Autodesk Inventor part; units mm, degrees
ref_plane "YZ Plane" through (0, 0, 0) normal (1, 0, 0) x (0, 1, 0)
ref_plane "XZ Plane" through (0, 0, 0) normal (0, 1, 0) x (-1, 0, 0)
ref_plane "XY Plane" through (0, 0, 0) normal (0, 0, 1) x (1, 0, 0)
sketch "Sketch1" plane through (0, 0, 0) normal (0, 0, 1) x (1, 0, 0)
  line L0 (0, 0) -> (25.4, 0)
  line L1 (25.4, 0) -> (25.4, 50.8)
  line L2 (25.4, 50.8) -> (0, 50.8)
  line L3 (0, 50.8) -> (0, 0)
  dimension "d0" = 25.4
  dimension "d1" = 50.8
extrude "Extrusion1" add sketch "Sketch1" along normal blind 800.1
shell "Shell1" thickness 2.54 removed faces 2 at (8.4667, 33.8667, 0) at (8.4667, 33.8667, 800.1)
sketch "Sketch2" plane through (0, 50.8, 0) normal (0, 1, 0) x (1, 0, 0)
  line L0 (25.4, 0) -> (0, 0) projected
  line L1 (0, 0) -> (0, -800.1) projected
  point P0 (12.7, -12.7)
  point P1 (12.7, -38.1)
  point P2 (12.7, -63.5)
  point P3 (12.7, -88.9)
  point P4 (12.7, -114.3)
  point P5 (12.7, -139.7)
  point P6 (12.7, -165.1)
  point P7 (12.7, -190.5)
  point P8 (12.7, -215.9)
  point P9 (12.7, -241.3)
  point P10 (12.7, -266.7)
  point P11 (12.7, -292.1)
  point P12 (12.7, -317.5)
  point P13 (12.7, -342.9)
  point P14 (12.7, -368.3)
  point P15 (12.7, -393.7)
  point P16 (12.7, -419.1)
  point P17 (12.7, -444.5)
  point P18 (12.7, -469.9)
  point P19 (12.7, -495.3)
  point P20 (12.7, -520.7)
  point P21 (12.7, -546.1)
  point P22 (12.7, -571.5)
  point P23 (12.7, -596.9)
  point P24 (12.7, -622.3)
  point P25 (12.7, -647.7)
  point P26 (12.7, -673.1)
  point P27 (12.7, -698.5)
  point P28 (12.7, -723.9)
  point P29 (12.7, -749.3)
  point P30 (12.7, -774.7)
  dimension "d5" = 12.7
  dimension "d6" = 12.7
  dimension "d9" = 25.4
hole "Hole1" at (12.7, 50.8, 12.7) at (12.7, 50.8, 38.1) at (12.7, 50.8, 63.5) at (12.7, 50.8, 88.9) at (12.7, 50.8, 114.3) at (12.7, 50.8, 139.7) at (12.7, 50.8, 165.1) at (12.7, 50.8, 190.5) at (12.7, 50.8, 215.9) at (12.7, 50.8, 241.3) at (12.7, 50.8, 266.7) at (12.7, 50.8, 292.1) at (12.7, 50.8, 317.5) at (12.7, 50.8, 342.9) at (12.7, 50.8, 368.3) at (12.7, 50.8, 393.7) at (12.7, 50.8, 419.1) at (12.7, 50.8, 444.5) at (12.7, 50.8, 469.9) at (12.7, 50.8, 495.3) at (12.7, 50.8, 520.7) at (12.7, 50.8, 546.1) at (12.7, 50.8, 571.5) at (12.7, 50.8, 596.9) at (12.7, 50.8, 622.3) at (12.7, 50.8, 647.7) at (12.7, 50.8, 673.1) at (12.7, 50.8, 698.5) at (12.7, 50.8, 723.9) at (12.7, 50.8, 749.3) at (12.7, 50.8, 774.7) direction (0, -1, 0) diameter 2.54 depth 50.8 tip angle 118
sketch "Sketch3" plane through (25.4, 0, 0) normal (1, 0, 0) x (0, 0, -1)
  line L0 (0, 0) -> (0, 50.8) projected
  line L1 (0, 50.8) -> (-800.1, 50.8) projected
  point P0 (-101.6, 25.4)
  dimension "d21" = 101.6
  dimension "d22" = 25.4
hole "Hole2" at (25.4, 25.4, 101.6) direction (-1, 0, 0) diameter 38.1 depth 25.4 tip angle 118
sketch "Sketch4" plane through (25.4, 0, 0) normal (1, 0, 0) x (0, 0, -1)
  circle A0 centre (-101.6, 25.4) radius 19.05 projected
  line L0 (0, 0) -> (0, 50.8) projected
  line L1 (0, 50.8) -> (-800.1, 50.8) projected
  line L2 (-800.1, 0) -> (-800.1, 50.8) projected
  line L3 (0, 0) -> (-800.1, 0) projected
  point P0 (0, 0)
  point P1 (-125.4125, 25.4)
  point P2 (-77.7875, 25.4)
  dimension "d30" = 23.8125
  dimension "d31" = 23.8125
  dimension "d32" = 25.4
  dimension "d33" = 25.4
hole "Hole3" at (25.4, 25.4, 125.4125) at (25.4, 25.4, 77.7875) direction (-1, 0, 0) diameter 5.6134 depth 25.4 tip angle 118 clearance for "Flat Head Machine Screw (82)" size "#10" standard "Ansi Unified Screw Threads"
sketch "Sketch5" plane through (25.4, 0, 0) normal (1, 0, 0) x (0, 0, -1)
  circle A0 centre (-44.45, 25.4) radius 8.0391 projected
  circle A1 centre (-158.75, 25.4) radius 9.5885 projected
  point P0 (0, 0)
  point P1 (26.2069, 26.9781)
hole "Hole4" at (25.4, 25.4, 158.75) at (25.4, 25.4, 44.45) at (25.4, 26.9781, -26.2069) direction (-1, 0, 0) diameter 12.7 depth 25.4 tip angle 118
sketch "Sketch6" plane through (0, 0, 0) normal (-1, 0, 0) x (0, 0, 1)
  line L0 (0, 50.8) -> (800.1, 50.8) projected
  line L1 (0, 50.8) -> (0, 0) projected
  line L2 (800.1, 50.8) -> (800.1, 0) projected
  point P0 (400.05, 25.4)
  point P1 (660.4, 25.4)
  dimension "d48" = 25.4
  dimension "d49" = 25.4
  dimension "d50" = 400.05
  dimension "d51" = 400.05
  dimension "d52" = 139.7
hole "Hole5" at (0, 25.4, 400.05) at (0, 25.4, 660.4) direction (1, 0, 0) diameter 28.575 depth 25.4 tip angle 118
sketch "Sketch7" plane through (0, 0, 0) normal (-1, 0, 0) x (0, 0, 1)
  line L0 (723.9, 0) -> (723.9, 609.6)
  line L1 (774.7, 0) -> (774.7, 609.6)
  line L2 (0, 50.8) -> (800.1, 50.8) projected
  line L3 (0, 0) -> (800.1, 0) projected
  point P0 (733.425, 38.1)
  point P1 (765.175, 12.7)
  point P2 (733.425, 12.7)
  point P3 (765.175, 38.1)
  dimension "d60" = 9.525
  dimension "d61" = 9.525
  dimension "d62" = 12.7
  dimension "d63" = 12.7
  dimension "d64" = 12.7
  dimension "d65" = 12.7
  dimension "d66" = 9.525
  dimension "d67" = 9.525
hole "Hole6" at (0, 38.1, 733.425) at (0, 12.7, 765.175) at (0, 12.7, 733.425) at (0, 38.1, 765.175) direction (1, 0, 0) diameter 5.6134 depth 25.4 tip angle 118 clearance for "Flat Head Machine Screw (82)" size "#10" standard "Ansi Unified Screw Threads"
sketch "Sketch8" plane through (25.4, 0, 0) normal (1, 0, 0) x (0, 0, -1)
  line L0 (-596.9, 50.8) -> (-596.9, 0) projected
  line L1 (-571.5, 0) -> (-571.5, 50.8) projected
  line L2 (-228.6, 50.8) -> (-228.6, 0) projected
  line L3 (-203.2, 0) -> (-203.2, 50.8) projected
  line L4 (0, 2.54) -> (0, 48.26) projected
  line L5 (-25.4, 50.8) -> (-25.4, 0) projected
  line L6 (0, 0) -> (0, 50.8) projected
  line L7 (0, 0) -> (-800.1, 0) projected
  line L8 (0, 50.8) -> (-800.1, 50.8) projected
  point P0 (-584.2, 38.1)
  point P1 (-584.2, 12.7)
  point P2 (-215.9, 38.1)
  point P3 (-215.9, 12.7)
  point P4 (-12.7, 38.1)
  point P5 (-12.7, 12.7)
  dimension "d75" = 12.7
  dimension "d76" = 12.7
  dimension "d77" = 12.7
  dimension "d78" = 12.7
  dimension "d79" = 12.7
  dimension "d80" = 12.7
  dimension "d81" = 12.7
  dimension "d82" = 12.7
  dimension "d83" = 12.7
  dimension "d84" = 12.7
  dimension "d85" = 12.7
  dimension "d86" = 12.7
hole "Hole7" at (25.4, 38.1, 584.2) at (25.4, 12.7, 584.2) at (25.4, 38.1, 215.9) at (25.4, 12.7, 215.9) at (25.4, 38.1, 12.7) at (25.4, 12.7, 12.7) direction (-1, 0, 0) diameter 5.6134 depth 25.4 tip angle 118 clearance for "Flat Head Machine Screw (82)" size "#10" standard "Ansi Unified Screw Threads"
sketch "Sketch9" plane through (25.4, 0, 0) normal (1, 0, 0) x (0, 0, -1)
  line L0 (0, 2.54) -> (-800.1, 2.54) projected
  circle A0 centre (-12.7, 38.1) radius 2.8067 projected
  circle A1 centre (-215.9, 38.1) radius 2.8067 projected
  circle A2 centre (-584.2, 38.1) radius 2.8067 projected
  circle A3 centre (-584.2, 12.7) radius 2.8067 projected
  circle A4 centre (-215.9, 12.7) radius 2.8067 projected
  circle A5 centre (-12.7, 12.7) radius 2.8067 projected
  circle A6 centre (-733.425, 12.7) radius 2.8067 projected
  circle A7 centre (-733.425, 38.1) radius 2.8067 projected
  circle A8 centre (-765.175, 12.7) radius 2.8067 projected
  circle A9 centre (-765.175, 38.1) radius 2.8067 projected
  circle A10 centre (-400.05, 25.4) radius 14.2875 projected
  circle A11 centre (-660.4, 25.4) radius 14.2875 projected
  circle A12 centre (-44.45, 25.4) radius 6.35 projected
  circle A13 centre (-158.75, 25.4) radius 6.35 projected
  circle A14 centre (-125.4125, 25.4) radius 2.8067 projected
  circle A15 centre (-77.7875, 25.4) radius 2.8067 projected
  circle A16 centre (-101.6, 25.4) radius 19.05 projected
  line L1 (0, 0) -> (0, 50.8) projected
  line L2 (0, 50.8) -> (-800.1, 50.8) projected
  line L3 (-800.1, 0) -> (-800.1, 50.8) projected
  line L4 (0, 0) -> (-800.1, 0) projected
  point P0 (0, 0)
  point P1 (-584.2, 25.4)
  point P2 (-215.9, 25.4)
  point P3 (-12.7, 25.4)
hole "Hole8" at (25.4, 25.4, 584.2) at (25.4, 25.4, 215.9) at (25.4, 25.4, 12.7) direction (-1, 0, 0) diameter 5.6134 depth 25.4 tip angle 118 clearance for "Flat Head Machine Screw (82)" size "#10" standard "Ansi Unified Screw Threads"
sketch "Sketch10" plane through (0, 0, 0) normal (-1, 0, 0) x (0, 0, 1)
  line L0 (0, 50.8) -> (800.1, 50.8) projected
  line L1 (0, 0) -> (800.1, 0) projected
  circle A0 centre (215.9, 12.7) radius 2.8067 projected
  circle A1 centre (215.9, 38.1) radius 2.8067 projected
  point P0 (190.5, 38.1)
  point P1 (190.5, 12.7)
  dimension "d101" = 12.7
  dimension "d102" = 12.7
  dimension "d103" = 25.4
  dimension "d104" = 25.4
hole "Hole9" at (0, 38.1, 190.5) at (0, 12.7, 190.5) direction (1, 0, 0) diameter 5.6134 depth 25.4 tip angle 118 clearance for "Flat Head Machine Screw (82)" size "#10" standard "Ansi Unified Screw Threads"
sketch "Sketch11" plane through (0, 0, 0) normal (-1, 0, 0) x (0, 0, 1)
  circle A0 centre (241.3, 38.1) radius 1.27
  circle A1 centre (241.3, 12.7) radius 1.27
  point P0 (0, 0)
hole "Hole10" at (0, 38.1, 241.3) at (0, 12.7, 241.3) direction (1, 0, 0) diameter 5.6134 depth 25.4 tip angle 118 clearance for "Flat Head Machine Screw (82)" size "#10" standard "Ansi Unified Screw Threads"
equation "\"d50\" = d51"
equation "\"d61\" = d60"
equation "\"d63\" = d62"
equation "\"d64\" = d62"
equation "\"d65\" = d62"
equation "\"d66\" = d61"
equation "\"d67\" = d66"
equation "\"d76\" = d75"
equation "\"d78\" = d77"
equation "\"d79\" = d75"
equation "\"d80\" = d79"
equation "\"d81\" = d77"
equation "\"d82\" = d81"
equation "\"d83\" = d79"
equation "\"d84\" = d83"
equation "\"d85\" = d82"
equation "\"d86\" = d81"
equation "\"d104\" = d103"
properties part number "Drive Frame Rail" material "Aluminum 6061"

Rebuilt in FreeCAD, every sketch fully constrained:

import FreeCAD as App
import Part
import Sketcher
from FreeCAD import Vector
Q = App.Units.Quantity


def faces_at(feature, points):
    """Names of the faces that lie closest to the given points."""
    faces = feature.Shape.Faces
    near = lambda p: min(range(len(faces)), key=lambda i: faces[i].distToShape(Part.Vertex(*p))[0])
    return sorted({f"Face{near(p) + 1}" for p in points})

doc = App.newDocument("Part")
params = doc.addObject("Spreadsheet::Sheet", "Params")
for row, (alias, value) in enumerate([
    ("sketch1_width", "1 in"),
    ("sketch1_height", "2 in"),
    ("pad1_length", "31.5 in"),
    ("thickness_wall", "0.1 in"),
    ("sketch2_diameter", "0.1 in"),
    ("hole_diameter", "0.1 in"),
    ("hole_depth", "2 in"),
    ("sketch3_diameter", "1.5 in"),
    ("hole2_diameter", "1.5 in"),
    ("hole2_depth", "1 in"),
    ("sketch4_diameter", "0.221 in"),
    ("hole3_diameter", "0.221 in"),
    ("hole3_depth", "1 in"),
    ("sketch5_diameter", "0.5 in"),
    ("hole4_diameter", "0.5 in"),
    ("hole4_depth", "1 in"),
    ("sketch6_diameter", "1.125 in"),
    ("hole5_diameter", "1.125 in"),
    ("hole5_depth", "1 in"),
    ("sketch7_diameter", "0.221 in"),
    ("hole6_diameter", "0.221 in"),
    ("hole6_depth", "1 in"),
    ("sketch8_diameter", "0.221 in"),
    ("hole7_diameter", "0.221 in"),
    ("hole7_depth", "1 in"),
    ("sketch9_diameter", "0.221 in"),
    ("hole8_diameter", "0.221 in"),
    ("hole8_depth", "1 in"),
    ("sketch10_diameter", "0.221 in"),
    ("hole9_diameter", "0.221 in"),
    ("hole9_depth", "1 in"),
    ("sketch11_diameter", "0.221 in"),
    ("hole10_diameter", "0.221 in"),
    ("hole10_depth", "1 in"),
], start=1):
    params.set(f"A{row}", alias)
    params.set(f"B{row}", "=" + value)
    params.setAlias(f"B{row}", alias)

body = doc.addObject("PartDesign::Body", "Body")

# Sketch on XY plane
sketch1 = doc.addObject("Sketcher::SketchObject", "Sketch")
body.addObject(sketch1)
sketch1.AttachmentSupport = (doc.XY_Plane, [""])
sketch1.MapMode = "FlatFace"
sketch1.addGeometry([
    Part.LineSegment(Vector(0, 51, 0), Vector(0, 0, 0)),
    Part.LineSegment(Vector(0, 0, 0), Vector(25, 0, 0)),
    Part.LineSegment(Vector(25, 0, 0), Vector(25, 51, 0)),
    Part.LineSegment(Vector(25, 51, 0), Vector(0, 51, 0)),
], False)
sketch1.addConstraint([
    Sketcher.Constraint("Coincident", 0, 2, 1, 1),
    Sketcher.Constraint("Coincident", 1, 2, 2, 1),
    Sketcher.Constraint("Coincident", 2, 2, 3, 1),
    Sketcher.Constraint("Coincident", 3, 2, 0, 1),
    Sketcher.Constraint("Vertical", 0),
    Sketcher.Constraint("Horizontal", 1),
    Sketcher.Constraint("Vertical", 2),
    Sketcher.Constraint("Horizontal", 3),
    Sketcher.Constraint("Coincident", 0, 2, -1, 1),
    Sketcher.Constraint("DistanceX", 1, 1, 1, 2, Q("1 in")),
    Sketcher.Constraint("DistanceY", 0, 2, 0, 1, Q("2 in")),
])
sketch1.setExpression("Constraints[9]", "Params.sketch1_width")
sketch1.setExpression("Constraints[10]", "Params.sketch1_height")
pad1 = doc.addObject("PartDesign::Pad", "Pad")
body.addObject(pad1)
pad1.Profile = sketch1
pad1.setExpression("Length", "Params.pad1_length")
doc.recompute()

thickness = doc.addObject("PartDesign::Thickness", "Thickness")
body.addObject(thickness)
thickness.Base = (pad1, faces_at(pad1, [(8.467, 33.867, 0), (8.467, 33.867, 800.1)]))
thickness.setExpression("Value", "Params.thickness_wall")
thickness.Reversed = True
thickness.Join = "Intersection"

# Sketch on XZ plane
sketch2 = doc.addObject("Sketcher::SketchObject", "Sketch001")
body.addObject(sketch2)
sketch2.AttachmentSupport = (doc.XZ_Plane, [""])
sketch2.MapMode = "FlatFace"
sketch2.AttachmentOffset = App.Placement(Vector(0, 0, -2 * 25.4), App.Rotation())
sketch2.addGeometry([
    Part.Circle(Vector(12.7, 12.7, 0), Vector(0, 0, 1), 1.3),  # 0
    Part.Circle(Vector(12.7, 38.1, 0), Vector(0, 0, 1), 1.3),  # 1
    Part.Circle(Vector(12.7, 63.5, 0), Vector(0, 0, 1), 1.3),  # 2
    Part.Circle(Vector(12.7, 88.9, 0), Vector(0, 0, 1), 1.3),  # 3
    Part.Circle(Vector(12.7, 114.3, 0), Vector(0, 0, 1), 1.3),  # 4
    Part.Circle(Vector(12.7, 139.7, 0), Vector(0, 0, 1), 1.3),  # 5
    Part.Circle(Vector(12.7, 165.1, 0), Vector(0, 0, 1), 1.3),  # 6
    Part.Circle(Vector(12.7, 190.5, 0), Vector(0, 0, 1), 1.3),  # 7
    Part.Circle(Vector(12.7, 215.9, 0), Vector(0, 0, 1), 1.3),  # 8
    Part.Circle(Vector(12.7, 241.3, 0), Vector(0, 0, 1), 1.3),  # 9
    Part.Circle(Vector(12.7, 266.7, 0), Vector(0, 0, 1), 1.3),  # 10
    Part.Circle(Vector(12.7, 292.1, 0), Vector(0, 0, 1), 1.3),  # 11
    Part.Circle(Vector(12.7, 317.5, 0), Vector(0, 0, 1), 1.3),  # 12
    Part.Circle(Vector(12.7, 342.9, 0), Vector(0, 0, 1), 1.3),  # 13
    Part.Circle(Vector(12.7, 368.3, 0), Vector(0, 0, 1), 1.3),  # 14
    Part.Circle(Vector(12.7, 393.7, 0), Vector(0, 0, 1), 1.3),  # 15
    Part.Circle(Vector(12.7, 419.1, 0), Vector(0, 0, 1), 1.3),  # 16
    Part.Circle(Vector(12.7, 444.5, 0), Vector(0, 0, 1), 1.3),  # 17
    Part.Circle(Vector(12.7, 469.9, 0), Vector(0, 0, 1), 1.3),  # 18
    Part.Circle(Vector(12.7, 495.3, 0), Vector(0, 0, 1), 1.3),  # 19
    Part.Circle(Vector(12.7, 520.7, 0), Vector(0, 0, 1), 1.3),  # 20
    Part.Circle(Vector(12.7, 546.1, 0), Vector(0, 0, 1), 1.3),  # 21
    Part.Circle(Vector(12.7, 571.5, 0), Vector(0, 0, 1), 1.3),  # 22
    Part.Circle(Vector(12.7, 596.9, 0), Vector(0, 0, 1), 1.3),  # 23
    Part.Circle(Vector(12.7, 622.3, 0), Vector(0, 0, 1), 1.3),  # 24
    Part.Circle(Vector(12.7, 647.7, 0), Vector(0, 0, 1), 1.3),  # 25
    Part.Circle(Vector(12.7, 673.1, 0), Vector(0, 0, 1), 1.3),  # 26
    Part.Circle(Vector(12.7, 698.5, 0), Vector(0, 0, 1), 1.3),  # 27
    Part.Circle(Vector(12.7, 723.9, 0), Vector(0, 0, 1), 1.3),  # 28
    Part.Circle(Vector(12.7, 749.3, 0), Vector(0, 0, 1), 1.3),  # 29
    Part.Circle(Vector(12.7, 774.7, 0), Vector(0, 0, 1), 1.3),  # 30
], False)
sketch2.addConstraint([
    Sketcher.Constraint("Equal", 0, 1),
    Sketcher.Constraint("Equal", 1, 2),
    Sketcher.Constraint("Equal", 2, 3),
    Sketcher.Constraint("Equal", 3, 4),
    Sketcher.Constraint("Equal", 4, 5),
    Sketcher.Constraint("Equal", 5, 6),
    Sketcher.Constraint("Equal", 6, 7),
    Sketcher.Constraint("Equal", 7, 8),
    Sketcher.Constraint("Equal", 8, 9),
    Sketcher.Constraint("Equal", 9, 10),
    Sketcher.Constraint("Equal", 10, 11),
    Sketcher.Constraint("Equal", 11, 12),
    Sketcher.Constraint("Equal", 12, 13),
    Sketcher.Constraint("Equal", 13, 14),
    Sketcher.Constraint("Equal", 14, 15),
    Sketcher.Constraint("Equal", 15, 16),
    Sketcher.Constraint("Equal", 16, 17),
    Sketcher.Constraint("Equal", 17, 18),
    Sketcher.Constraint("Equal", 18, 19),
    Sketcher.Constraint("Equal", 19, 20),
    Sketcher.Constraint("Equal", 20, 21),
    Sketcher.Constraint("Equal", 21, 22),
    Sketcher.Constraint("Equal", 22, 23),
    Sketcher.Constraint("Equal", 23, 24),
    Sketcher.Constraint("Equal", 24, 25),
    Sketcher.Constraint("Equal", 25, 26),
    Sketcher.Constraint("Equal", 26, 27),
    Sketcher.Constraint("Equal", 27, 28),
    Sketcher.Constraint("Equal", 28, 29),
    Sketcher.Constraint("Equal", 29, 30),
    Sketcher.Constraint("Vertical", 0, 3, 1, 3),
    Sketcher.Constraint("Vertical", 1, 3, 2, 3),
    Sketcher.Constraint("Vertical", 2, 3, 3, 3),
    Sketcher.Constraint("Vertical", 3, 3, 4, 3),
    Sketcher.Constraint("Vertical", 4, 3, 5, 3),
    Sketcher.Constraint("Vertical", 5, 3, 6, 3),
    Sketcher.Constraint("Vertical", 6, 3, 7, 3),
    Sketcher.Constraint("Vertical", 7, 3, 8, 3),
    Sketcher.Constraint("Vertical", 8, 3, 9, 3),
    Sketcher.Constraint("Vertical", 9, 3, 10, 3),
    Sketcher.Constraint("Vertical", 10, 3, 11, 3),
    Sketcher.Constraint("Vertical", 11, 3, 12, 3),
    Sketcher.Constraint("Vertical", 12, 3, 13, 3),
    Sketcher.Constraint("Vertical", 13, 3, 14, 3),
    Sketcher.Constraint("Vertical", 14, 3, 15, 3),
    Sketcher.Constraint("Vertical", 15, 3, 16, 3),
    Sketcher.Constraint("Vertical", 16, 3, 17, 3),
    Sketcher.Constraint("Vertical", 17, 3, 18, 3),
    Sketcher.Constraint("Vertical", 18, 3, 19, 3),
    Sketcher.Constraint("Vertical", 19, 3, 20, 3),
    Sketcher.Constraint("Vertical", 20, 3, 21, 3),
    Sketcher.Constraint("Vertical", 21, 3, 22, 3),
    Sketcher.Constraint("Vertical", 22, 3, 23, 3),
    Sketcher.Constraint("Vertical", 23, 3, 24, 3),
    Sketcher.Constraint("Vertical", 24, 3, 25, 3),
    Sketcher.Constraint("Vertical", 25, 3, 26, 3),
    Sketcher.Constraint("Vertical", 26, 3, 27, 3),
    Sketcher.Constraint("Vertical", 27, 3, 28, 3),
    Sketcher.Constraint("Vertical", 28, 3, 29, 3),
    Sketcher.Constraint("Vertical", 29, 3, 30, 3),
    Sketcher.Constraint("Diameter", 0, Q("0.1 in")),
    Sketcher.Constraint("DistanceY", 0, 3, 1, 3, Q("1 in")),
    Sketcher.Constraint("DistanceY", 1, 3, 2, 3, Q("1 in")),
    Sketcher.Constraint("DistanceY", 2, 3, 3, 3, Q("1 in")),
    Sketcher.Constraint("DistanceY", 3, 3, 4, 3, Q("1 in")),
    Sketcher.Constraint("DistanceY", 4, 3, 5, 3, Q("1 in")),
    Sketcher.Constraint("DistanceY", 5, 3, 6, 3, Q("1 in")),
    Sketcher.Constraint("DistanceY", 6, 3, 7, 3, Q("1 in")),
    Sketcher.Constraint("DistanceY", 7, 3, 8, 3, Q("1 in")),
    Sketcher.Constraint("DistanceY", 8, 3, 9, 3, Q("1 in")),
    Sketcher.Constraint("DistanceY", 9, 3, 10, 3, Q("1 in")),
    Sketcher.Constraint("DistanceY", 10, 3, 11, 3, Q("1 in")),
    Sketcher.Constraint("DistanceY", 11, 3, 12, 3, Q("1 in")),
    Sketcher.Constraint("DistanceY", 12, 3, 13, 3, Q("1 in")),
    Sketcher.Constraint("DistanceY", 13, 3, 14, 3, Q("1 in")),
    Sketcher.Constraint("DistanceY", 14, 3, 15, 3, Q("1 in")),
    Sketcher.Constraint("DistanceY", 15, 3, 16, 3, Q("1 in")),
    Sketcher.Constraint("DistanceY", 16, 3, 17, 3, Q("1 in")),
    Sketcher.Constraint("DistanceY", 17, 3, 18, 3, Q("1 in")),
    Sketcher.Constraint("DistanceY", 18, 3, 19, 3, Q("1 in")),
    Sketcher.Constraint("DistanceY", 19, 3, 20, 3, Q("1 in")),
    Sketcher.Constraint("DistanceY", 20, 3, 21, 3, Q("1 in")),
    Sketcher.Constraint("DistanceY", 21, 3, 22, 3, Q("1 in")),
    Sketcher.Constraint("DistanceY", 22, 3, 23, 3, Q("1 in")),
    Sketcher.Constraint("DistanceY", 23, 3, 24, 3, Q("1 in")),
    Sketcher.Constraint("DistanceY", 24, 3, 25, 3, Q("1 in")),
    Sketcher.Constraint("DistanceY", 25, 3, 26, 3, Q("1 in")),
    Sketcher.Constraint("DistanceY", 26, 3, 27, 3, Q("1 in")),
    Sketcher.Constraint("DistanceY", 27, 3, 28, 3, Q("1 in")),
    Sketcher.Constraint("DistanceY", 28, 3, 29, 3, Q("1 in")),
    Sketcher.Constraint("DistanceY", 29, 3, 30, 3, Q("1 in")),
    Sketcher.Constraint("DistanceX", -1, 1, 0, 3, Q("0.5 in")),
    Sketcher.Constraint("DistanceY", -1, 1, 0, 3, Q("0.5 in")),
])
sketch2.setExpression("Constraints[60]", "Params.sketch2_diameter")
doc.recompute()
hole = doc.addObject("PartDesign::Hole", "Hole")
body.addObject(hole)
hole.Profile = sketch2
hole.ThreadType = "None"
hole.setExpression("Diameter", "Params.hole_diameter")
hole.DepthType = "Dimension"
hole.setExpression("Depth", "Params.hole_depth")
hole.DrillPoint = "Angled"
hole.DrillPointAngle = 118
hole.Reversed = True

# Sketch on YZ plane
sketch3 = doc.addObject("Sketcher::SketchObject", "Sketch002")
body.addObject(sketch3)
sketch3.AttachmentSupport = (doc.YZ_Plane, [""])
sketch3.MapMode = "FlatFace"
sketch3.AttachmentOffset = App.Placement(Vector(0, 0, 1 * 25.4), App.Rotation())
sketch3.addGeometry(Part.Circle(Vector(25, 102, 0), Vector(0, 0, 1), 19), False)
sketch3.addConstraint([
    Sketcher.Constraint("Diameter", 0, Q("1.5 in")),
    Sketcher.Constraint("DistanceX", -1, 1, 0, 3, Q("1 in")),
    Sketcher.Constraint("DistanceY", -1, 1, 0, 3, Q("4 in")),
])
sketch3.setExpression("Constraints[0]", "Params.sketch3_diameter")
doc.recompute()
hole2 = doc.addObject("PartDesign::Hole", "Hole001")
body.addObject(hole2)
hole2.Profile = sketch3
hole2.ThreadType = "None"
hole2.setExpression("Diameter", "Params.hole2_diameter")
hole2.DepthType = "Dimension"
hole2.setExpression("Depth", "Params.hole2_depth")
hole2.DrillPoint = "Angled"
hole2.DrillPointAngle = 118

# Sketch on YZ plane
sketch4 = doc.addObject("Sketcher::SketchObject", "Sketch003")
body.addObject(sketch4)
sketch4.AttachmentSupport = (doc.YZ_Plane, [""])
sketch4.MapMode = "FlatFace"
sketch4.AttachmentOffset = App.Placement(Vector(0, 0, 1 * 25.4), App.Rotation())
sketch4.addGeometry([
    Part.Circle(Vector(25.4, 125.4, 0), Vector(0, 0, 1), 2.8),
    Part.Circle(Vector(25.4, 77.8, 0), Vector(0, 0, 1), 2.8),
], False)
sketch4.addConstraint([
    Sketcher.Constraint("Equal", 0, 1),
    Sketcher.Constraint("Vertical", 0, 3, 1, 3),
    Sketcher.Constraint("Diameter", 0, Q("0.221 in")),
    Sketcher.Constraint("DistanceX", -1, 1, 0, 3, Q("1 in")),
    Sketcher.Constraint("DistanceY", -1, 1, 0, 3, Q("4.9375 in")),
    Sketcher.Constraint("DistanceY", -1, 1, 1, 3, Q("3.0625 in")),
])
sketch4.setExpression("Constraints[2]", "Params.sketch4_diameter")
doc.recompute()
hole3 = doc.addObject("PartDesign::Hole", "Hole002")
body.addObject(hole3)
hole3.Profile = sketch4
hole3.ThreadType = "None"
hole3.setExpression("Diameter", "Params.hole3_diameter")
hole3.DepthType = "Dimension"
hole3.setExpression("Depth", "Params.hole3_depth")
hole3.DrillPoint = "Angled"
hole3.DrillPointAngle = 118

# Sketch on YZ plane
sketch5 = doc.addObject("Sketcher::SketchObject", "Sketch004")
body.addObject(sketch5)
sketch5.AttachmentSupport = (doc.YZ_Plane, [""])
sketch5.MapMode = "FlatFace"
sketch5.AttachmentOffset = App.Placement(Vector(0, 0, 1 * 25.4), App.Rotation())
sketch5.addGeometry([
    Part.Circle(Vector(25, 159, 0), Vector(0, 0, 1), 6),
    Part.Circle(Vector(25, 44, 0), Vector(0, 0, 1), 6),
    Part.Circle(Vector(27, -26, 0), Vector(0, 0, 1), 6),
], False)
sketch5.addConstraint([
    Sketcher.Constraint("Equal", 0, 1),
    Sketcher.Constraint("Equal", 1, 2),
    Sketcher.Constraint("Vertical", 0, 3, 1, 3),
    Sketcher.Constraint("Diameter", 0, Q("0.5 in")),
    Sketcher.Constraint("DistanceX", -1, 1, 0, 3, Q("1 in")),
    Sketcher.Constraint("DistanceY", 1, 3, 0, 3, Q("4.5 in")),
    Sketcher.Constraint("DistanceY", -1, 1, 0, 3, Q("6.25 in")),
    Sketcher.Constraint("DistanceX", -1, 1, 2, 3, 26.978),
    Sketcher.Constraint("DistanceY", 2, 3, -1, 1, 26.207),
])
sketch5.setExpression("Constraints[3]", "Params.sketch5_diameter")
doc.recompute()
hole4 = doc.addObject("PartDesign::Hole", "Hole003")
body.addObject(hole4)
hole4.Profile = sketch5
hole4.ThreadType = "None"
hole4.setExpression("Diameter", "Params.hole4_diameter")
hole4.DepthType = "Dimension"
hole4.setExpression("Depth", "Params.hole4_depth")
hole4.DrillPoint = "Angled"
hole4.DrillPointAngle = 118

# Sketch on YZ plane
sketch6 = doc.addObject("Sketcher::SketchObject", "Sketch005")
body.addObject(sketch6)
sketch6.AttachmentSupport = (doc.YZ_Plane, [""])
sketch6.MapMode = "FlatFace"
sketch6.addGeometry([
    Part.Circle(Vector(25, 400, 0), Vector(0, 0, 1), 14),
    Part.Circle(Vector(25, 660, 0), Vector(0, 0, 1), 14),
], False)
sketch6.addConstraint([
    Sketcher.Constraint("Equal", 0, 1),
    Sketcher.Constraint("Vertical", 0, 3, 1, 3),
    Sketcher.Constraint("Diameter", 0, Q("1.125 in")),
    Sketcher.Constraint("DistanceX", -1, 1, 0, 3, Q("1 in")),
    Sketcher.Constraint("DistanceY", -1, 1, 1, 3, Q("26 in")),
    Sketcher.Constraint("DistanceY", -1, 1, 0, 3, Q("15.75 in")),
])
sketch6.setExpression("Constraints[2]", "Params.sketch6_diameter")
doc.recompute()
hole5 = doc.addObject("PartDesign::Hole", "Hole004")
body.addObject(hole5)
hole5.Profile = sketch6
hole5.ThreadType = "None"
hole5.setExpression("Diameter", "Params.hole5_diameter")
hole5.DepthType = "Dimension"
hole5.setExpression("Depth", "Params.hole5_depth")
hole5.DrillPoint = "Angled"
hole5.DrillPointAngle = 118
hole5.Reversed = True

# Sketch on YZ plane
sketch7 = doc.addObject("Sketcher::SketchObject", "Sketch006")
body.addObject(sketch7)
sketch7.AttachmentSupport = (doc.YZ_Plane, [""])
sketch7.MapMode = "FlatFace"
sketch7.addGeometry([
    Part.Circle(Vector(38.1, 733.4, 0), Vector(0, 0, 1), 2.8),
    Part.Circle(Vector(12.7, 765.2, 0), Vector(0, 0, 1), 2.8),
    Part.Circle(Vector(12.7, 733.4, 0), Vector(0, 0, 1), 2.8),
    Part.Circle(Vector(38.1, 765.2, 0), Vector(0, 0, 1), 2.8),
], False)
sketch7.addConstraint([
    Sketcher.Constraint("Equal", 0, 1),
    Sketcher.Constraint("Equal", 1, 2),
    Sketcher.Constraint("Equal", 2, 3),
    Sketcher.Constraint("Horizontal", 0, 3, 2, 3),
    Sketcher.Constraint("Horizontal", 1, 3, 3, 3),
    Sketcher.Constraint("Vertical", 1, 3, 2, 3),
    Sketcher.Constraint("Vertical", 0, 3, 3, 3),
    Sketcher.Constraint("Diameter", 0, Q("0.221 in")),
    Sketcher.Constraint("DistanceX", 1, 3, 0, 3, Q("1 in")),
    Sketcher.Constraint("DistanceX", -1, 1, 0, 3, Q("1.5 in")),
    Sketcher.Constraint("DistanceY", 0, 3, 1, 3, Q("1.25 in")),
    Sketcher.Constraint("DistanceY", -1, 1, 0, 3, Q("28.875 in")),
])
sketch7.setExpression("Constraints[7]", "Params.sketch7_diameter")
doc.recompute()
hole6 = doc.addObject("PartDesign::Hole", "Hole005")
body.addObject(hole6)
hole6.Profile = sketch7
hole6.ThreadType = "None"
hole6.setExpression("Diameter", "Params.hole6_diameter")
hole6.DepthType = "Dimension"
hole6.setExpression("Depth", "Params.hole6_depth")
hole6.DrillPoint = "Angled"
hole6.DrillPointAngle = 118
hole6.Reversed = True

# Sketch on YZ plane
sketch8 = doc.addObject("Sketcher::SketchObject", "Sketch007")
body.addObject(sketch8)
sketch8.AttachmentSupport = (doc.YZ_Plane, [""])
sketch8.MapMode = "FlatFace"
sketch8.AttachmentOffset = App.Placement(Vector(0, 0, 1 * 25.4), App.Rotation())
sketch8.addGeometry([
    Part.Circle(Vector(38.1, 584.2, 0), Vector(0, 0, 1), 2.8),  # 0
    Part.Circle(Vector(12.7, 584.2, 0), Vector(0, 0, 1), 2.8),  # 1
    Part.Circle(Vector(38.1, 215.9, 0), Vector(0, 0, 1), 2.8),  # 2
    Part.Circle(Vector(12.7, 215.9, 0), Vector(0, 0, 1), 2.8),  # 3
    Part.Circle(Vector(38.1, 12.7, 0), Vector(0, 0, 1), 2.8),  # 4
    Part.Circle(Vector(12.7, 12.7, 0), Vector(0, 0, 1), 2.8),  # 5
], False)
sketch8.addConstraint([
    Sketcher.Constraint("Equal", 0, 1),
    Sketcher.Constraint("Equal", 1, 2),
    Sketcher.Constraint("Equal", 2, 3),
    Sketcher.Constraint("Equal", 3, 4),
    Sketcher.Constraint("Equal", 4, 5),
    Sketcher.Constraint("Horizontal", 0, 3, 1, 3),
    Sketcher.Constraint("Horizontal", 2, 3, 3, 3),
    Sketcher.Constraint("Horizontal", 4, 3, 5, 3),
    Sketcher.Constraint("Vertical", 0, 3, 2, 3),
    Sketcher.Constraint("Vertical", 1, 3, 3, 3),
    Sketcher.Constraint("Vertical", 2, 3, 4, 3),
    Sketcher.Constraint("Vertical", 3, 3, 5, 3),
    Sketcher.Constraint("Diameter", 0, Q("0.221 in")),
    Sketcher.Constraint("DistanceY", -1, 1, 0, 3, Q("23 in")),
    Sketcher.Constraint("DistanceX", 1, 3, 0, 3, Q("1 in")),
    Sketcher.Constraint("DistanceY", 4, 3, 2, 3, Q("8 in")),
    Sketcher.Constraint("DistanceX", -1, 1, 0, 3, Q("1.5 in")),
    Sketcher.Constraint("DistanceY", -1, 1, 2, 3, Q("8.5 in")),
])
sketch8.setExpression("Constraints[12]", "Params.sketch8_diameter")
doc.recompute()
hole7 = doc.addObject("PartDesign::Hole", "Hole006")
body.addObject(hole7)
hole7.Profile = sketch8
hole7.ThreadType = "None"
hole7.setExpression("Diameter", "Params.hole7_diameter")
hole7.DepthType = "Dimension"
hole7.setExpression("Depth", "Params.hole7_depth")
hole7.DrillPoint = "Angled"
hole7.DrillPointAngle = 118

# Sketch on YZ plane
sketch9 = doc.addObject("Sketcher::SketchObject", "Sketch008")
body.addObject(sketch9)
sketch9.AttachmentSupport = (doc.YZ_Plane, [""])
sketch9.MapMode = "FlatFace"
sketch9.AttachmentOffset = App.Placement(Vector(0, 0, 1 * 25.4), App.Rotation())
sketch9.addGeometry([
    Part.Circle(Vector(25.4, 584.2, 0), Vector(0, 0, 1), 2.8),
    Part.Circle(Vector(25.4, 215.9, 0), Vector(0, 0, 1), 2.8),
    Part.Circle(Vector(25.4, 12.7, 0), Vector(0, 0, 1), 2.8),
], False)
sketch9.addConstraint([
    Sketcher.Constraint("Equal", 0, 1),
    Sketcher.Constraint("Equal", 1, 2),
    Sketcher.Constraint("Vertical", 0, 3, 1, 3),
    Sketcher.Constraint("Vertical", 1, 3, 2, 3),
    Sketcher.Constraint("Diameter", 0, Q("0.221 in")),
    Sketcher.Constraint("DistanceX", -1, 1, 0, 3, Q("1 in")),
    Sketcher.Constraint("DistanceY", -1, 1, 0, 3, Q("23 in")),
    Sketcher.Constraint("DistanceY", 2, 3, 1, 3, Q("8 in")),
    Sketcher.Constraint("DistanceY", -1, 1, 1, 3, Q("8.5 in")),
])
sketch9.setExpression("Constraints[4]", "Params.sketch9_diameter")
doc.recompute()
hole8 = doc.addObject("PartDesign::Hole", "Hole007")
body.addObject(hole8)
hole8.Profile = sketch9
hole8.ThreadType = "None"
hole8.setExpression("Diameter", "Params.hole8_diameter")
hole8.DepthType = "Dimension"
hole8.setExpression("Depth", "Params.hole8_depth")
hole8.DrillPoint = "Angled"
hole8.DrillPointAngle = 118

# Sketch on YZ plane
sketch10 = doc.addObject("Sketcher::SketchObject", "Sketch009")
body.addObject(sketch10)
sketch10.AttachmentSupport = (doc.YZ_Plane, [""])
sketch10.MapMode = "FlatFace"
sketch10.addGeometry([
    Part.Circle(Vector(38.1, 190.5, 0), Vector(0, 0, 1), 2.8),
    Part.Circle(Vector(12.7, 190.5, 0), Vector(0, 0, 1), 2.8),
], False)
sketch10.addConstraint([
    Sketcher.Constraint("Equal", 0, 1),
    Sketcher.Constraint("Horizontal", 0, 3, 1, 3),
    Sketcher.Constraint("Diameter", 0, Q("0.221 in")),
    Sketcher.Constraint("DistanceX", 1, 3, 0, 3, Q("1 in")),
    Sketcher.Constraint("DistanceX", -1, 1, 0, 3, Q("1.5 in")),
    Sketcher.Constraint("DistanceY", -1, 1, 0, 3, Q("7.5 in")),
])
sketch10.setExpression("Constraints[2]", "Params.sketch10_diameter")
doc.recompute()
hole9 = doc.addObject("PartDesign::Hole", "Hole008")
body.addObject(hole9)
hole9.Profile = sketch10
hole9.ThreadType = "None"
hole9.setExpression("Diameter", "Params.hole9_diameter")
hole9.DepthType = "Dimension"
hole9.setExpression("Depth", "Params.hole9_depth")
hole9.DrillPoint = "Angled"
hole9.DrillPointAngle = 118
hole9.Reversed = True

# Sketch on YZ plane
sketch11 = doc.addObject("Sketcher::SketchObject", "Sketch010")
body.addObject(sketch11)
sketch11.AttachmentSupport = (doc.YZ_Plane, [""])
sketch11.MapMode = "FlatFace"
sketch11.addGeometry([
    Part.Circle(Vector(38.1, 241.3, 0), Vector(0, 0, 1), 2.8),
    Part.Circle(Vector(12.7, 241.3, 0), Vector(0, 0, 1), 2.8),
], False)
sketch11.addConstraint([
    Sketcher.Constraint("Equal", 0, 1),
    Sketcher.Constraint("Horizontal", 0, 3, 1, 3),
    Sketcher.Constraint("Diameter", 0, Q("0.221 in")),
    Sketcher.Constraint("DistanceX", 1, 3, 0, 3, Q("1 in")),
    Sketcher.Constraint("DistanceX", -1, 1, 0, 3, Q("1.5 in")),
    Sketcher.Constraint("DistanceY", -1, 1, 0, 3, Q("9.5 in")),
])
sketch11.setExpression("Constraints[2]", "Params.sketch11_diameter")
doc.recompute()
hole10 = doc.addObject("PartDesign::Hole", "Hole009")
body.addObject(hole10)
hole10.Profile = sketch11
hole10.ThreadType = "None"
hole10.setExpression("Diameter", "Params.hole10_diameter")
hole10.DepthType = "Dimension"
hole10.setExpression("Depth", "Params.hole10_depth")
hole10.DrillPoint = "Angled"
hole10.DrillPointAngle = 118
hole10.Reversed = True

doc.recompute()
